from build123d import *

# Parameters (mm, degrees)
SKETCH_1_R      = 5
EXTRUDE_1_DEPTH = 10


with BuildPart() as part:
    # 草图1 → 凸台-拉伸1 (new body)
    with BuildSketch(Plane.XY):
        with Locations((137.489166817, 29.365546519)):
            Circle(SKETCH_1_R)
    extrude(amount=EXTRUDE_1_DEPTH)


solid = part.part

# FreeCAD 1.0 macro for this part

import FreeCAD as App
import Part
import Sketcher
from FreeCAD import Vector

doc = App.newDocument("Part")
params = doc.addObject("Spreadsheet::Sheet", "Params")
for row, (alias, value) in enumerate([
    ("sketch1_diameter", "10 mm"),
    ("pad1_length", "10 mm"),
], start=1):
    params.set(f"A{row}", alias)
    params.set(f"B{row}", "=" + value)
    params.setAlias(f"B{row}", alias)

body = doc.addObject("PartDesign::Body", "Body")

sketch1 = body.newObject("Sketcher::SketchObject", "Sketch")
sketch1.AttachmentSupport = (doc.getObject("XY_Plane"), [""])
sketch1.MapMode = "FlatFace"
sketch1.addGeometry(Part.Circle(Vector(137, 29, 0), Vector(0, 0, 1), 5), False)
sketch1.addConstraint([
    Sketcher.Constraint("Diameter", 0, 10.0),
    Sketcher.Constraint("DistanceX", -1, 1, 0, 3, 137.489167),
    Sketcher.Constraint("DistanceY", -1, 1, 0, 3, 29.365547),
])
sketch1.setExpression("Constraints[0]", "Params.sketch1_diameter")
pad1 = body.newObject("PartDesign::Pad", "Pad")
pad1.Profile = sketch1
pad1.setExpression("Length", "Params.pad1_length")

doc.recompute()
